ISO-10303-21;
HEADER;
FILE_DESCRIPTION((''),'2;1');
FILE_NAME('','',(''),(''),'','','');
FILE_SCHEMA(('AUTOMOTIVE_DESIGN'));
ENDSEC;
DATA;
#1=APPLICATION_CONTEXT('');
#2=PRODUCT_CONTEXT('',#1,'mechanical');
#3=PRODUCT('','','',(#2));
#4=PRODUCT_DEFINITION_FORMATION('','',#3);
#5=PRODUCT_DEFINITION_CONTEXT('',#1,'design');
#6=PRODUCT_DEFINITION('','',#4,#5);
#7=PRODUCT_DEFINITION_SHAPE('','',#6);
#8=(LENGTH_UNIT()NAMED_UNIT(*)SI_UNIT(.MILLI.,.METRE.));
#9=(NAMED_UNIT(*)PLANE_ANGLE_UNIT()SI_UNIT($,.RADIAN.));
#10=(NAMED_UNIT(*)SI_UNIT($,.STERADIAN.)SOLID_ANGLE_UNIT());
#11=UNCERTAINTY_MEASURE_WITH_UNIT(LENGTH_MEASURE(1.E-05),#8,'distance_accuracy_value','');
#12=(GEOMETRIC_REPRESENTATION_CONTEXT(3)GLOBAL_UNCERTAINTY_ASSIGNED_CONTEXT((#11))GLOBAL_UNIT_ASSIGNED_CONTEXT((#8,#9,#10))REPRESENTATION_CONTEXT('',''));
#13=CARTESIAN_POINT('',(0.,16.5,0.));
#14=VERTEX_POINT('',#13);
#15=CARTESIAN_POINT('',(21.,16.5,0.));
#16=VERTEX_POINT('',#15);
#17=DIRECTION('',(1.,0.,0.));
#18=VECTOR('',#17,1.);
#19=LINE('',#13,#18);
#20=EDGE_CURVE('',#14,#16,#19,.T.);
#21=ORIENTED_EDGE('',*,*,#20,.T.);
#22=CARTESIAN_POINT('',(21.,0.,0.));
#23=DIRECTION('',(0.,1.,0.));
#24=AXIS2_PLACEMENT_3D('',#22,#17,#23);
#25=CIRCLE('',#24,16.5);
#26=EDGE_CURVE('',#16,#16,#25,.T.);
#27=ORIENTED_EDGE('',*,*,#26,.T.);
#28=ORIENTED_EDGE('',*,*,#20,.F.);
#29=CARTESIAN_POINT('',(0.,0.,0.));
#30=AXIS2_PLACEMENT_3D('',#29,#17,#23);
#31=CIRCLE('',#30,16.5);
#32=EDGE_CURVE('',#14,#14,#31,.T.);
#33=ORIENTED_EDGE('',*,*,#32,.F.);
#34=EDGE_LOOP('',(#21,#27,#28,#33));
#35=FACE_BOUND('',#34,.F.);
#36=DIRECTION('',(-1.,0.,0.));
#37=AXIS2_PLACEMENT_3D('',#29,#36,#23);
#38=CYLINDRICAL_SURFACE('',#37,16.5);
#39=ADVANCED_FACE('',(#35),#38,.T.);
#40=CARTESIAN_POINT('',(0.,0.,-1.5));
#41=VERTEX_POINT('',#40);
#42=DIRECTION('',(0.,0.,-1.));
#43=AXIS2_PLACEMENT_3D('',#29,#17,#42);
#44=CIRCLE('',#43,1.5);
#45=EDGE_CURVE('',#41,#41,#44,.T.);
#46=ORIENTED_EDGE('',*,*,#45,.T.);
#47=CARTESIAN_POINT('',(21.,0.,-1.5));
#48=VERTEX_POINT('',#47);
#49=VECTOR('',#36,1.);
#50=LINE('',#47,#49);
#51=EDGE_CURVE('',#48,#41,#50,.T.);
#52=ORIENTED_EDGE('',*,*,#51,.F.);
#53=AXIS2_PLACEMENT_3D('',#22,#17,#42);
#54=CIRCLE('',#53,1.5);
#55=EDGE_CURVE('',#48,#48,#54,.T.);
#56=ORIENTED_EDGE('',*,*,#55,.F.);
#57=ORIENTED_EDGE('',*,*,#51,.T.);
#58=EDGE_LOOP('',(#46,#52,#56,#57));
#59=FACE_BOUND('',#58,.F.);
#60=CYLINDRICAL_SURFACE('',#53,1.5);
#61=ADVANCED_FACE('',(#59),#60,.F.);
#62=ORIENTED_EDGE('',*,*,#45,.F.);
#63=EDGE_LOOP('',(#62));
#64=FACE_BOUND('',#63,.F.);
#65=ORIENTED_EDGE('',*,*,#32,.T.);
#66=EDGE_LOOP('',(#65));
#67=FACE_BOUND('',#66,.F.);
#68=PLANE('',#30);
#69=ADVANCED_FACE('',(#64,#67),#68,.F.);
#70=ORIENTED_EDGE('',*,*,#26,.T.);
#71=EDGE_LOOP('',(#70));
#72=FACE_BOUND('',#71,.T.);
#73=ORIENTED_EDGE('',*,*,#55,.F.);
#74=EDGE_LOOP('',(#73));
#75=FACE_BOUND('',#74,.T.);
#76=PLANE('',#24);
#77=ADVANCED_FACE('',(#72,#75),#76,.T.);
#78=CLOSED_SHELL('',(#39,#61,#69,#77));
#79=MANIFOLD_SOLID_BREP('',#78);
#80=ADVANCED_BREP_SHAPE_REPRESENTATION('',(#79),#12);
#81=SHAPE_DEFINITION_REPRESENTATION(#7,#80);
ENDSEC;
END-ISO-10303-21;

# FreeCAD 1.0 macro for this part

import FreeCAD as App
import Part
import Sketcher
from FreeCAD import Vector

doc = App.newDocument("Part")
body = doc.addObject("PartDesign::Body", "Body")

# Sketch on YZ plane
sketch1 = body.newObject("Sketcher::SketchObject", "Sketch")
sketch1.AttachmentSupport = (doc.getObject("YZ_Plane"), [""])
sketch1.MapMode = "FlatFace"
sketch1.addGeometry(Part.Circle(Vector(0, 0, 0), Vector(0, 0, 1), 16), False)
sketch1.addConstraint(Sketcher.Constraint("Coincident", 0, 3, -1, 1))
sketch1.addConstraint(Sketcher.Constraint("Diameter", 0, 33.0))
pad1 = body.newObject("PartDesign::Pad", "Pad")
pad1.Profile = sketch1
pad1.Length = 21

# Sketch on YZ plane
sketch2 = body.newObject("Sketcher::SketchObject", "Sketch001")
sketch2.AttachmentSupport = (doc.getObject("YZ_Plane"), [""])
sketch2.MapMode = "FlatFace"
sketch2.AttachmentOffset = App.Placement(Vector(0, 0, 21), App.Rotation())
sketch2.addGeometry(Part.Circle(Vector(0, 0, 0), Vector(0, 0, 1), 1.5), False)
sketch2.addConstraint(Sketcher.Constraint("Coincident", 0, 3, -1, 1))
sketch2.addConstraint(Sketcher.Constraint("Diameter", 0, 3.0))
pocket1 = body.newObject("PartDesign::Pocket", "Pocket")
pocket1.Profile = sketch2
pocket1.Type = "ThroughAll"

doc.recompute()
